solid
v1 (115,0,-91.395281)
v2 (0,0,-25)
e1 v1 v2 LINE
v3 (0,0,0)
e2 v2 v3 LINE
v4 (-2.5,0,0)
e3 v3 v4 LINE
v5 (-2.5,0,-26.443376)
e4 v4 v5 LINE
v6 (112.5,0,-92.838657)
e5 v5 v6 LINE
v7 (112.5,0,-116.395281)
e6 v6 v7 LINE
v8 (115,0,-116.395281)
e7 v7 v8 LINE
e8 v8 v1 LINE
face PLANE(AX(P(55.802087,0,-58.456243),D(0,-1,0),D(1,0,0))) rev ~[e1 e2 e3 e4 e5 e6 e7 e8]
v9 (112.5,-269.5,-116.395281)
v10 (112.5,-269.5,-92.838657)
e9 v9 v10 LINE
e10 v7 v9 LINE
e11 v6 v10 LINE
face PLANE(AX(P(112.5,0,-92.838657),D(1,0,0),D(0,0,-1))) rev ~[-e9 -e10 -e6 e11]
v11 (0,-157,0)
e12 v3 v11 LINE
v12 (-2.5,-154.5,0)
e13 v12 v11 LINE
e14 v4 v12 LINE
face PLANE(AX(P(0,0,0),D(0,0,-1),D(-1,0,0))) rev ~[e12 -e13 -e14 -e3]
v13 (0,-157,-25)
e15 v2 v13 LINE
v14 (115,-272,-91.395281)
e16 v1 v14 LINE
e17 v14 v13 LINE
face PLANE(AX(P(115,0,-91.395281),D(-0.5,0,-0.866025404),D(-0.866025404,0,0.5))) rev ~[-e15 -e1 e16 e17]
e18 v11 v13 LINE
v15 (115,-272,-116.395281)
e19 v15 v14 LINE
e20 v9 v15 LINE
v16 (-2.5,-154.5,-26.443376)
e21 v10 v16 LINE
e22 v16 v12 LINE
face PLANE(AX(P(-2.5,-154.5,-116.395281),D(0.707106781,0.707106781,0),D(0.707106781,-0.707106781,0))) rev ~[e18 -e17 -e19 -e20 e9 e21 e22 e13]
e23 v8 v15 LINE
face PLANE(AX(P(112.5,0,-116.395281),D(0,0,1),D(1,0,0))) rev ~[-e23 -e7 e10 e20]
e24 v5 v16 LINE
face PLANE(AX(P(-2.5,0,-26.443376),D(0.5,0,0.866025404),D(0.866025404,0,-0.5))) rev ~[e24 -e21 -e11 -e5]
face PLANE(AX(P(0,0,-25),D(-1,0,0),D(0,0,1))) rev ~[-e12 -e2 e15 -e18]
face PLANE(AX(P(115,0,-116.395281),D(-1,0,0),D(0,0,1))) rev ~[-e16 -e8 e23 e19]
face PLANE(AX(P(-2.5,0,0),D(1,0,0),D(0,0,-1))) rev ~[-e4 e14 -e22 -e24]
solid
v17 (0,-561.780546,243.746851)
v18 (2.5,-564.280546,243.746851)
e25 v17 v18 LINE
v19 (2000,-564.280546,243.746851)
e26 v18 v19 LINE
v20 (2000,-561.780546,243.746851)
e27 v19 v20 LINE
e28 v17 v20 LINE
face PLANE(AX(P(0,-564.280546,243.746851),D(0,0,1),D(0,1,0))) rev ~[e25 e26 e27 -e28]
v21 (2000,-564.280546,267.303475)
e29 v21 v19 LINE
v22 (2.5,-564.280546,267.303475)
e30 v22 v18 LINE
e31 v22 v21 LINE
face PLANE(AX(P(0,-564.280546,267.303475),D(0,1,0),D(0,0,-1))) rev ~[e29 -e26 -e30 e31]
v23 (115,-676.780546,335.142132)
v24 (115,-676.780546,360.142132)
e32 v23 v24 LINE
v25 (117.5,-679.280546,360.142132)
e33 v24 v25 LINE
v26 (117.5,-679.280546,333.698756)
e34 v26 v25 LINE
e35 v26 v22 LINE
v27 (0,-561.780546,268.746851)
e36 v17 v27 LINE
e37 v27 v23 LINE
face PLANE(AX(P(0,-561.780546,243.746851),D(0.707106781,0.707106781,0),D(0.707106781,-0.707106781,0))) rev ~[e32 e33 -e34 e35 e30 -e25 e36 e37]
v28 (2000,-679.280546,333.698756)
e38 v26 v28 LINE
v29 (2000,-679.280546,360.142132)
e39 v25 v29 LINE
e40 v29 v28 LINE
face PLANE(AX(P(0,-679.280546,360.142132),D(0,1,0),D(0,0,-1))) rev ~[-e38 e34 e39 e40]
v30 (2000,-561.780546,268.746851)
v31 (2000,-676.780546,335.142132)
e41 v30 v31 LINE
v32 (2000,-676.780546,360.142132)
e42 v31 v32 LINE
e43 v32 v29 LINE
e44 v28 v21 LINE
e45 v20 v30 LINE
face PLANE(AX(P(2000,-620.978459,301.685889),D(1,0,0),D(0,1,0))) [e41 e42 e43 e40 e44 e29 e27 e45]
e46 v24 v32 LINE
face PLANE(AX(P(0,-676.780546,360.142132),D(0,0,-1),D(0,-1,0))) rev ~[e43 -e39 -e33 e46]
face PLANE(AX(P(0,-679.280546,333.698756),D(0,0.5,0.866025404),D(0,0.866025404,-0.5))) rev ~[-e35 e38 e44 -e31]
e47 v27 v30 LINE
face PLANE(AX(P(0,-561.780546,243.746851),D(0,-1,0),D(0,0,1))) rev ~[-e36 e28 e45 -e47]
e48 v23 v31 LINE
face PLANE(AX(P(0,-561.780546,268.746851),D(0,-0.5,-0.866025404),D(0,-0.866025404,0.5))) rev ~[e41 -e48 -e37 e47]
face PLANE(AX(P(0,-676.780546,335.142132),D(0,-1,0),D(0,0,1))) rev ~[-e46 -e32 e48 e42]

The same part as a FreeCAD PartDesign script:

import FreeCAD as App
import Part
import Sketcher
Q = App.Units.Quantity

doc = App.newDocument("Part")
body = doc.addObject("PartDesign::Body", "Body")

# Sketch on XZ plane
sketch1 = body.newObject("Sketcher::SketchObject", "Sketch")
sketch1.AttachmentSupport = (doc.getObject("XZ_Plane"), [""])
sketch1.MapMode = "FlatFace"
sketch1.addGeometry(Part.LineSegment(App.Vector(0, -25, 0), App.Vector(0, 0, 0)), False)
sketch1.addGeometry(Part.LineSegment(App.Vector(0, 0, 0), App.Vector(-2.5, 0, 0)), False)
sketch1.addGeometry(Part.LineSegment(App.Vector(-2.5, 0, 0), App.Vector(-2.5, -26.4, 0)), False)
sketch1.addGeometry(Part.LineSegment(App.Vector(-2.5, -26.4, 0), App.Vector(112.5, -92.8, 0)), False)
sketch1.addGeometry(Part.LineSegment(App.Vector(112.5, -92.8, 0), App.Vector(112.5, -116.4, 0)), False)
sketch1.addGeometry(Part.LineSegment(App.Vector(112.5, -116.4, 0), App.Vector(115, -116.4, 0)), False)
sketch1.addGeometry(Part.LineSegment(App.Vector(115, -116.4, 0), App.Vector(115, -91.4, 0)), False)
sketch1.addGeometry(Part.LineSegment(App.Vector(115, -91.4, 0), App.Vector(0, -25, 0)), False)
sketch1.addConstraint(Sketcher.Constraint("Coincident", 0, 2, 1, 1))
sketch1.addConstraint(Sketcher.Constraint("Coincident", 1, 2, 2, 1))
sketch1.addConstraint(Sketcher.Constraint("Coincident", 2, 2, 3, 1))
sketch1.addConstraint(Sketcher.Constraint("Coincident", 3, 2, 4, 1))
sketch1.addConstraint(Sketcher.Constraint("Coincident", 4, 2, 5, 1))
sketch1.addConstraint(Sketcher.Constraint("Coincident", 5, 2, 6, 1))
sketch1.addConstraint(Sketcher.Constraint("Coincident", 6, 2, 7, 1))
sketch1.addConstraint(Sketcher.Constraint("Coincident", 7, 2, 0, 1))
sketch1.addConstraint(Sketcher.Constraint("Vertical", 0))
sketch1.addConstraint(Sketcher.Constraint("Horizontal", 1))
sketch1.addConstraint(Sketcher.Constraint("Vertical", 2))
sketch1.addConstraint(Sketcher.Constraint("Vertical", 4))
sketch1.addConstraint(Sketcher.Constraint("Horizontal", 5))
sketch1.addConstraint(Sketcher.Constraint("Vertical", 6))
sketch1.addConstraint(Sketcher.Constraint("Coincident", 0, 2, -1, 1))
sketch1.addConstraint(Sketcher.Constraint("Parallel", 3, 7))
sketch1.addConstraint(Sketcher.Constraint("Equal", 1, 5))
sketch1.addConstraint(Sketcher.Constraint("Equal", 0, 6))
sketch1.addConstraint(Sketcher.Constraint("DistanceY", 0, 1, 0, 2, 25.0))
sketch1.addConstraint(Sketcher.Constraint("Angle", 3, Q("-30 deg")))
sketch1.addConstraint(Sketcher.Constraint("DistanceX", 1, 2, 1, 1, 2.5))
sketch1.addConstraint(Sketcher.Constraint("DistanceX", -1, 1, 5, 2, 115.0))
sketch1.addConstraint(Sketcher.Constraint("DistanceY", 2, 2, 2, 1, 26.443376))
pad1 = body.newObject("PartDesign::Pad", "Pad")
pad1.Profile = sketch1
pad1.Length = 272

# Sketch on XY plane
sketch2 = body.newObject("Sketcher::SketchObject", "Sketch001")
sketch2.AttachmentSupport = (doc.getObject("XY_Plane"), [""])
sketch2.MapMode = "FlatFace"
sketch2.AttachmentOffset = App.Placement(App.Vector(0, 0, -116.395281), App.Rotation())
sketch2.addGeometry(Part.LineSegment(App.Vector(-2.5, -154.5, 0), App.Vector(112.5, -269.5, 0)), False)
sketch2.addGeometry(Part.LineSegment(App.Vector(112.5, -269.5, 0), App.Vector(112.5, -272, 0)), False)
sketch2.addGeometry(Part.LineSegment(App.Vector(112.5, -272, 0), App.Vector(-2.5, -272, 0)), False)
sketch2.addGeometry(Part.LineSegment(App.Vector(-2.5, -272, 0), App.Vector(-2.5, -154.5, 0)), False)
sketch2.addConstraint(Sketcher.Constraint("Coincident", 0, 2, 1, 1))
sketch2.addConstraint(Sketcher.Constraint("Coincident", 1, 2, 2, 1))
sketch2.addConstraint(Sketcher.Constraint("Coincident", 2, 2, 3, 1))
sketch2.addConstraint(Sketcher.Constraint("Coincident", 3, 2, 0, 1))
sketch2.addConstraint(Sketcher.Constraint("Vertical", 1))
sketch2.addConstraint(Sketcher.Constraint("Horizontal", 2))
sketch2.addConstraint(Sketcher.Constraint("Vertical", 3))
sketch2.addConstraint(Sketcher.Constraint("DistanceX", 2, 2, 2, 1, 115.0))
sketch2.addConstraint(Sketcher.Constraint("Angle", 0, Q("-45 deg")))
sketch2.addConstraint(Sketcher.Constraint("DistanceY", 1, 2, 1, 1, 2.5))
sketch2.addConstraint(Sketcher.Constraint("DistanceY", 1, 2, -1, 1, 272.0))
sketch2.addConstraint(Sketcher.Constraint("DistanceX", -1, 1, 0, 2, 112.5))
pocket1 = body.newObject("PartDesign::Pocket", "Pocket")
pocket1.Profile = sketch2
pocket1.Type = "ThroughAll"
pocket1.Reversed = True

# Sketch on XY plane
sketch3 = body.newObject("Sketcher::SketchObject", "Sketch002")
sketch3.AttachmentSupport = (doc.getObject("XY_Plane"), [""])
sketch3.MapMode = "FlatFace"
sketch3.AttachmentOffset = App.Placement(App.Vector(0, 0, -116.395281), App.Rotation())
sketch3.addGeometry(Part.LineSegment(App.Vector(112.5, -269.5, 0), App.Vector(115, -272, 0)), False)
sketch3.addGeometry(Part.LineSegment(App.Vector(115, -272, 0), App.Vector(112.5, -272, 0)), False)
sketch3.addGeometry(Part.LineSegment(App.Vector(112.5, -272, 0), App.Vector(112.5, -269.5, 0)), False)
sketch3.addConstraint(Sketcher.Constraint("Coincident", 0, 2, 1, 1))
sketch3.addConstraint(Sketcher.Constraint("Coincident", 1, 2, 2, 1))
sketch3.addConstraint(Sketcher.Constraint("Coincident", 2, 2, 0, 1))
sketch3.addConstraint(Sketcher.Constraint("Horizontal", 1))
sketch3.addConstraint(Sketcher.Constraint("Vertical", 2))
sketch3.addConstraint(Sketcher.Constraint("Equal", 1, 2))
sketch3.addConstraint(Sketcher.Constraint("DistanceX", 1, 2, 1, 1, 2.5))
sketch3.addConstraint(Sketcher.Constraint("DistanceX", -1, 1, 0, 2, 115.0))
sketch3.addConstraint(Sketcher.Constraint("DistanceY", 0, 2, -1, 1, 272.0))
pocket2 = body.newObject("PartDesign::Pocket", "Pocket001")
pocket2.Profile = sketch3
pocket2.Type = "ThroughAll"
pocket2.Reversed = True
body2 = doc.addObject("PartDesign::Body", "Body001")

# Sketch on YZ plane
sketch4 = body2.newObject("Sketcher::SketchObject", "Sketch003")
sketch4.AttachmentSupport = (doc.getObject("YZ_Plane001"), [""])
sketch4.MapMode = "FlatFace"
sketch4.addGeometry(Part.LineSegment(App.Vector(-676.8, 335.1, 0), App.Vector(-676.8, 360.1, 0)), False)
sketch4.addGeometry(Part.LineSegment(App.Vector(-676.8, 360.1, 0), App.Vector(-679.3, 360.1, 0)), False)
sketch4.addGeometry(Part.LineSegment(App.Vector(-679.3, 360.1, 0), App.Vector(-679.3, 333.7, 0)), False)
sketch4.addGeometry(Part.LineSegment(App.Vector(-679.3, 333.7, 0), App.Vector(-564.3, 267.3, 0)), False)
sketch4.addGeometry(Part.LineSegment(App.Vector(-564.3, 267.3, 0), App.Vector(-564.3, 243.7, 0)), False)
sketch4.addGeometry(Part.LineSegment(App.Vector(-564.3, 243.7, 0), App.Vector(-561.8, 243.7, 0)), False)
sketch4.addGeometry(Part.LineSegment(App.Vector(-561.8, 243.7, 0), App.Vector(-561.8, 268.7, 0)), False)
sketch4.addGeometry(Part.LineSegment(App.Vector(-561.8, 268.7, 0), App.Vector(-676.8, 335.1, 0)), False)
sketch4.addConstraint(Sketcher.Constraint("Coincident", 0, 2, 1, 1))
sketch4.addConstraint(Sketcher.Constraint("Coincident", 1, 2, 2, 1))
sketch4.addConstraint(Sketcher.Constraint("Coincident", 2, 2, 3, 1))
sketch4.addConstraint(Sketcher.Constraint("Coincident", 3, 2, 4, 1))
sketch4.addConstraint(Sketcher.Constraint("Coincident", 4, 2, 5, 1))
sketch4.addConstraint(Sketcher.Constraint("Coincident", 5, 2, 6, 1))
sketch4.addConstraint(Sketcher.Constraint("Coincident", 6, 2, 7, 1))
sketch4.addConstraint(Sketcher.Constraint("Coincident", 7, 2, 0, 1))
sketch4.addConstraint(Sketcher.Constraint("Vertical", 0))
sketch4.addConstraint(Sketcher.Constraint("Horizontal", 1))
sketch4.addConstraint(Sketcher.Constraint("Vertical", 2))
sketch4.addConstraint(Sketcher.Constraint("Vertical", 4))
sketch4.addConstraint(Sketcher.Constraint("Horizontal", 5))
sketch4.addConstraint(Sketcher.Constraint("Vertical", 6))
sketch4.addConstraint(Sketcher.Constraint("Parallel", 3, 7))
sketch4.addConstraint(Sketcher.Constraint("Equal", 1, 5))
sketch4.addConstraint(Sketcher.Constraint("Equal", 0, 6))
sketch4.addConstraint(Sketcher.Constraint("DistanceY", 0, 1, 0, 2, 25.0))
sketch4.addConstraint(Sketcher.Constraint("Angle", 3, Q("-30 deg")))
sketch4.addConstraint(Sketcher.Constraint("DistanceX", 1, 2, 1, 1, 2.5))
sketch4.addConstraint(Sketcher.Constraint("DistanceX", 2, 2, 3, 2, 115.0))
sketch4.addConstraint(Sketcher.Constraint("DistanceY", 2, 2, 2, 1, 26.443376))
sketch4.addConstraint(Sketcher.Constraint("DistanceY", -1, 1, 0, 2, 360.142132))
sketch4.addConstraint(Sketcher.Constraint("DistanceX", 0, 2, -1, 1, 676.780546))
pad2 = body2.newObject("PartDesign::Pad", "Pad001")
pad2.Profile = sketch4
pad2.Length = 2000

# Sketch on XY plane
sketch5 = body2.newObject("Sketcher::SketchObject", "Sketch004")
sketch5.AttachmentSupport = (doc.getObject("XY_Plane001"), [""])
sketch5.MapMode = "FlatFace"
sketch5.AttachmentOffset = App.Placement(App.Vector(0, 0, 243.746851), App.Rotation())
sketch5.addGeometry(Part.LineSegment(App.Vector(118, -679, 0), App.Vector(0, -679, 0)), False)
sketch5.addGeometry(Part.LineSegment(App.Vector(0, -679, 0), App.Vector(0, -562, 0)), False)
sketch5.addGeometry(Part.LineSegment(App.Vector(0, -562, 0), App.Vector(118, -679, 0)), False)
sketch5.addConstraint(Sketcher.Constraint("Coincident", 0, 2, 1, 1))
sketch5.addConstraint(Sketcher.Constraint("Coincident", 1, 2, 2, 1))
sketch5.addConstraint(Sketcher.Constraint("Coincident", 2, 2, 0, 1))
sketch5.addConstraint(Sketcher.Constraint("Horizontal", 0))
sketch5.addConstraint(Sketcher.Constraint("Vertical", 1))
sketch5.addConstraint(Sketcher.Constraint("PointOnObject", 0, 2, -2))
sketch5.addConstraint(Sketcher.Constraint("Equal", 0, 1))
sketch5.addConstraint(Sketcher.Constraint("DistanceX", 0, 2, 0, 1, 117.5))
sketch5.addConstraint(Sketcher.Constraint("DistanceY", 0, 2, -1, 1, 679.280546))
pocket3 = body2.newObject("PartDesign::Pocket", "Pocket002")
pocket3.Profile = sketch5
pocket3.Type = "ThroughAll"
pocket3.Reversed = True
body3 = doc.addObject("PartDesign::Body", "Body002")
doc.recompute()

body3.BaseFeature = body
doc.recompute()
body.Visibility = False

doc.recompute()
